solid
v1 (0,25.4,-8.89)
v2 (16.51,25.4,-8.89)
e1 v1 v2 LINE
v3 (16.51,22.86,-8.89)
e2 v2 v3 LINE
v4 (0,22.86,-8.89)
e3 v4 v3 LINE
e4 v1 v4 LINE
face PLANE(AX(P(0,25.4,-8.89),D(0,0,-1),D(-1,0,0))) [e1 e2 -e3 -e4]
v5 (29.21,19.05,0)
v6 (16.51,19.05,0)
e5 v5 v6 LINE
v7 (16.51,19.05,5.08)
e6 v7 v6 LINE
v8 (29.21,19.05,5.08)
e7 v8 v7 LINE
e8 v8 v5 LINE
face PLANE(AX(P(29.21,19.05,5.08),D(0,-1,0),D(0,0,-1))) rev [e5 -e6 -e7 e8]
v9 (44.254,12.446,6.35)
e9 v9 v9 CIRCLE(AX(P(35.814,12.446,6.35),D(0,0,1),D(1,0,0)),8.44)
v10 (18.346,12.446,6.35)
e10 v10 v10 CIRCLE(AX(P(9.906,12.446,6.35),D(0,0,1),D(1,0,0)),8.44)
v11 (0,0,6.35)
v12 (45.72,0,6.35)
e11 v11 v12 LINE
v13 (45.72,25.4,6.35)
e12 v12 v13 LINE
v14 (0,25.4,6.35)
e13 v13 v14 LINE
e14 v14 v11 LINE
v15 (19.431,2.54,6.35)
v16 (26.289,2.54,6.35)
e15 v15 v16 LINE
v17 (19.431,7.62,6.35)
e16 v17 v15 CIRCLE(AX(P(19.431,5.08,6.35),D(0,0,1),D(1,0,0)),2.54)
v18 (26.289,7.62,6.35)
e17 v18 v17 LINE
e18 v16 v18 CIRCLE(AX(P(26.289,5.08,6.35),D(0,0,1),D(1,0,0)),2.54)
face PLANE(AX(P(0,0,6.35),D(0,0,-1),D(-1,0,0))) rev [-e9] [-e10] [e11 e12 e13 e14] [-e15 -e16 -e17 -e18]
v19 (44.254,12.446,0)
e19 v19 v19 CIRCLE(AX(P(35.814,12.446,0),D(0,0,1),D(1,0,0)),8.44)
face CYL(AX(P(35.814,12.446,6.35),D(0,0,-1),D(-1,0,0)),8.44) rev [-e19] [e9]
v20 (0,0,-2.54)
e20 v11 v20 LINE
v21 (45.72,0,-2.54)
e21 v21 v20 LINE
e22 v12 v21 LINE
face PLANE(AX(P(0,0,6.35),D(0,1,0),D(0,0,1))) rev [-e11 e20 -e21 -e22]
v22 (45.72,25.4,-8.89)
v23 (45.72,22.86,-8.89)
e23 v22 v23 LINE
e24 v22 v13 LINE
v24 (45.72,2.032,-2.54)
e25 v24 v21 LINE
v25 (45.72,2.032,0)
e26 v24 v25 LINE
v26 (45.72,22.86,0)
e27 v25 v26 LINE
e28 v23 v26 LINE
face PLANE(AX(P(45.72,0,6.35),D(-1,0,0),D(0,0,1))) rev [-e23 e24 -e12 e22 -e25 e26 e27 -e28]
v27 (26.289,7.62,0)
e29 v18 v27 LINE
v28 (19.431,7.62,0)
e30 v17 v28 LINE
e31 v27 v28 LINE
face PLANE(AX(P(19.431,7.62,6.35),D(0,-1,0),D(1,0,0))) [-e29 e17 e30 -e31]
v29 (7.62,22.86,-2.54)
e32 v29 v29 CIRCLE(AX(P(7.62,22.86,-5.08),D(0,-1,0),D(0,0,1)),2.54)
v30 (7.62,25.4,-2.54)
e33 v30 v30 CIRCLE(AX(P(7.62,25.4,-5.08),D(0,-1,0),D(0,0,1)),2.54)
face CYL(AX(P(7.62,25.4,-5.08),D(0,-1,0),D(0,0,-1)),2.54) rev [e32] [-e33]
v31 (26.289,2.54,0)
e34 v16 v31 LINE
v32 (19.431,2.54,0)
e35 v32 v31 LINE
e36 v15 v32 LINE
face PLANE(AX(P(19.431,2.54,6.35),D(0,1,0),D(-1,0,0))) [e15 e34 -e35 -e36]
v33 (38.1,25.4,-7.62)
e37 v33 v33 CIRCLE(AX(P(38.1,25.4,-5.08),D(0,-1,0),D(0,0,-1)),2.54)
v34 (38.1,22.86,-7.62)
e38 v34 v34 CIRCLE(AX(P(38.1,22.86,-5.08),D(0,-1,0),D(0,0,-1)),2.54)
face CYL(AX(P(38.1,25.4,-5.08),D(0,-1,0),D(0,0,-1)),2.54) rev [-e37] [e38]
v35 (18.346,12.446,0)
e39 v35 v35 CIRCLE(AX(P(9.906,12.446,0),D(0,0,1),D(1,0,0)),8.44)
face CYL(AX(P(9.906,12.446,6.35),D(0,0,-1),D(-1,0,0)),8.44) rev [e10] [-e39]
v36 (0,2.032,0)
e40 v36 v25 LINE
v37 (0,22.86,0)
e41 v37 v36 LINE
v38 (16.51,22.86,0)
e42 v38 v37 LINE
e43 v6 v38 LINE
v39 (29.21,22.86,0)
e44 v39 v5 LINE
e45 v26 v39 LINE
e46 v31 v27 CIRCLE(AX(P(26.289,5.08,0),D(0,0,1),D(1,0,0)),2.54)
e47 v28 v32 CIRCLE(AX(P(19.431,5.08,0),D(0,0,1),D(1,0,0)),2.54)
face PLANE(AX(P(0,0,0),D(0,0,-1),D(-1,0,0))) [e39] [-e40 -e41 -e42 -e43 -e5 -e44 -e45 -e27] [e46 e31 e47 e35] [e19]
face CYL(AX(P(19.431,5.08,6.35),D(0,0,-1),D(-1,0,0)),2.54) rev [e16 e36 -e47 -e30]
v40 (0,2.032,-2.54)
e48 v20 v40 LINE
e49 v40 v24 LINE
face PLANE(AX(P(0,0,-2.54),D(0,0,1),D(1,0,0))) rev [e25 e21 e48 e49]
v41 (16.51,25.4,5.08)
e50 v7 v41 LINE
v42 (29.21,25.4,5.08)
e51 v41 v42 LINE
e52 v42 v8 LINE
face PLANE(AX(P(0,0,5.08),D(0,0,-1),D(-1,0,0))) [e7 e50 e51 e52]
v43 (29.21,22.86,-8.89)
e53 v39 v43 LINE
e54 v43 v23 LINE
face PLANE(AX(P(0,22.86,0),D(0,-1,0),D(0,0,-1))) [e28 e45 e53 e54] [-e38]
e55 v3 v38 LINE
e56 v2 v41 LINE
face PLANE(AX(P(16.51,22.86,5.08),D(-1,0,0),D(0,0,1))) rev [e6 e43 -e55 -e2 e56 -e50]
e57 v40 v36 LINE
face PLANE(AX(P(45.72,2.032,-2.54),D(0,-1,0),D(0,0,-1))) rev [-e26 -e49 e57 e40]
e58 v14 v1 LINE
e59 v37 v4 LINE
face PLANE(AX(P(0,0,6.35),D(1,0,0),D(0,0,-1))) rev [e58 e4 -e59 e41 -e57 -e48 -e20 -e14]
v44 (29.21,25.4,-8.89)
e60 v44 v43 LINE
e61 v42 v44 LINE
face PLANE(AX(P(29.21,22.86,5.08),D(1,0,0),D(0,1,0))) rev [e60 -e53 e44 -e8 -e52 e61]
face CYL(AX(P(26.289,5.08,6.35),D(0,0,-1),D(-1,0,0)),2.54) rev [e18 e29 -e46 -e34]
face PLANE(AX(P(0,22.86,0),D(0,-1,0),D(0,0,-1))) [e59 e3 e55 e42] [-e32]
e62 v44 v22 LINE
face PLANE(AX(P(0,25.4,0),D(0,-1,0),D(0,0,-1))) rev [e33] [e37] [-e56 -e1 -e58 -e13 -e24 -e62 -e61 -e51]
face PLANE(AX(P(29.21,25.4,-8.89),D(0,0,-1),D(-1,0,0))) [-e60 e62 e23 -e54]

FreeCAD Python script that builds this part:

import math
import FreeCAD as App
import Part
import Sketcher
from FreeCAD import Vector
Q = App.Units.Quantity

doc = App.newDocument("Part")
body = doc.addObject("PartDesign::Body", "Body")

sketch1 = body.newObject("Sketcher::SketchObject", "Sketch")
sketch1.AttachmentSupport = (doc.getObject("XY_Plane"), [""])
sketch1.MapMode = "FlatFace"
sketch1.addGeometry(Part.LineSegment(Vector(0, 22.9, 0), Vector(0, 0, 0)), False)
sketch1.addGeometry(Part.LineSegment(Vector(0, 0, 0), Vector(45.7, 0, 0)), False)
sketch1.addGeometry(Part.LineSegment(Vector(45.7, 0, 0), Vector(45.7, 22.9, 0)), False)
sketch1.addGeometry(Part.LineSegment(Vector(45.7, 22.9, 0), Vector(0, 22.9, 0)), False)
sketch1.addGeometry(Part.ArcOfCircle(Part.Circle(Vector(19.4, 5.1, 0), Vector(0, 0, 1), 2.5), math.radians(90), math.radians(270)), False)
sketch1.addGeometry(Part.LineSegment(Vector(19.4, 7.6, 0), Vector(26.3, 7.6, 0)), False)
sketch1.addGeometry(Part.ArcOfCircle(Part.Circle(Vector(26.3, 5.1, 0), Vector(0, 0, 1), 2.5), math.radians(-90), math.radians(90)), False)
sketch1.addGeometry(Part.LineSegment(Vector(26.3, 2.5, 0), Vector(19.4, 2.5, 0)), False)
sketch1.addGeometry(Part.Circle(Vector(9.9, 12.4, 0), Vector(0, 0, 1), 8.4), False)
sketch1.addGeometry(Part.Circle(Vector(35.8, 12.4, 0), Vector(0, 0, 1), 8.4), False)
sketch1.addConstraint(Sketcher.Constraint("Coincident", 0, 2, 1, 1))
sketch1.addConstraint(Sketcher.Constraint("Coincident", 1, 2, 2, 1))
sketch1.addConstraint(Sketcher.Constraint("Coincident", 2, 2, 3, 1))
sketch1.addConstraint(Sketcher.Constraint("Coincident", 3, 2, 0, 1))
sketch1.addConstraint(Sketcher.Constraint("Tangent", 4, 1, 5, 1))
sketch1.addConstraint(Sketcher.Constraint("Tangent", 5, 2, 6, 2))
sketch1.addConstraint(Sketcher.Constraint("Tangent", 6, 1, 7, 1))
sketch1.addConstraint(Sketcher.Constraint("Tangent", 7, 2, 4, 2))
sketch1.addConstraint(Sketcher.Constraint("Vertical", 0))
sketch1.addConstraint(Sketcher.Constraint("Horizontal", 1))
sketch1.addConstraint(Sketcher.Constraint("Vertical", 2))
sketch1.addConstraint(Sketcher.Constraint("Horizontal", 3))
sketch1.addConstraint(Sketcher.Constraint("Horizontal", 5))
sketch1.addConstraint(Sketcher.Constraint("Horizontal", 7))
sketch1.addConstraint(Sketcher.Constraint("Coincident", 0, 2, -1, 1))
sketch1.addConstraint(Sketcher.Constraint("Equal", 8, 9))
sketch1.addConstraint(Sketcher.Constraint("Horizontal", 8, 3, 9, 3))
sketch1.addConstraint(Sketcher.Constraint("Radius", 4, Q("0.1 in")))
sketch1.addConstraint(Sketcher.Constraint("DistanceX", 1, 1, 1, 2, Q("1.8 in")))
sketch1.addConstraint(Sketcher.Constraint("DistanceY", 0, 2, 0, 1, Q("0.9 in")))
sketch1.addConstraint(Sketcher.Constraint("DistanceX", 5, 1, 5, 2, Q("0.27 in")))
sketch1.addConstraint(Sketcher.Constraint("DistanceY", -1, 1, 4, 3, Q("0.2 in")))
sketch1.addConstraint(Sketcher.Constraint("Diameter", 8, 16.88))
sketch1.addConstraint(Sketcher.Constraint("DistanceX", -1, 1, 8, 3, Q("0.39 in")))
sketch1.addConstraint(Sketcher.Constraint("DistanceY", -1, 1, 8, 3, Q("0.49 in")))
sketch1.addConstraint(Sketcher.Constraint("DistanceX", -1, 1, 9, 3, Q("1.41 in")))
sketch1.addConstraint(Sketcher.Constraint("DistanceX", -1, 1, 4, 3, Q("0.765 in")))
pad1 = body.newObject("PartDesign::Pad", "Pad")
pad1.Profile = sketch1
pad1.Length = Q("0.25 in")

sketch2 = body.newObject("Sketcher::SketchObject", "Sketch001")
sketch2.AttachmentSupport = (doc.getObject("XY_Plane"), [""])
sketch2.MapMode = "FlatFace"
sketch2.addGeometry(Part.LineSegment(Vector(29.2, 22.9, 0), Vector(29.2, 19.1, 0)), False)
sketch2.addGeometry(Part.LineSegment(Vector(29.2, 19.1, 0), Vector(16.5, 19.1, 0)), False)
sketch2.addGeometry(Part.LineSegment(Vector(16.5, 19.1, 0), Vector(16.5, 22.9, 0)), False)
sketch2.addGeometry(Part.LineSegment(Vector(16.5, 22.9, 0), Vector(29.2, 22.9, 0)), False)
sketch2.addConstraint(Sketcher.Constraint("Coincident", 0, 2, 1, 1))
sketch2.addConstraint(Sketcher.Constraint("Coincident", 1, 2, 2, 1))
sketch2.addConstraint(Sketcher.Constraint("Coincident", 2, 2, 3, 1))
sketch2.addConstraint(Sketcher.Constraint("Coincident", 3, 2, 0, 1))
sketch2.addConstraint(Sketcher.Constraint("Vertical", 0))
sketch2.addConstraint(Sketcher.Constraint("Horizontal", 1))
sketch2.addConstraint(Sketcher.Constraint("Vertical", 2))
sketch2.addConstraint(Sketcher.Constraint("Horizontal", 3))
sketch2.addConstraint(Sketcher.Constraint("DistanceX", 1, 2, 1, 1, Q("0.5 in")))
sketch2.addConstraint(Sketcher.Constraint("DistanceY", 0, 2, 0, 1, Q("0.15 in")))
sketch2.addConstraint(Sketcher.Constraint("DistanceY", -1, 1, 2, 2, Q("0.9 in")))
sketch2.addConstraint(Sketcher.Constraint("DistanceX", -1, 1, 0, 2, Q("1.15 in")))
pocket1 = body.newObject("PartDesign::Pocket", "Pocket")
pocket1.Profile = sketch2
pocket1.Length = Q("0.2 in")
pocket1.Reversed = True

sketch3 = body.newObject("Sketcher::SketchObject", "Sketch002")
sketch3.AttachmentSupport = (doc.getObject("XZ_Plane"), [""])
sketch3.MapMode = "FlatFace"
sketch3.AttachmentOffset = App.Placement(Vector(0, 0, -0.9 * 25.4), App.Rotation())
sketch3.addGeometry(Part.LineSegment(Vector(0, -9, 0), Vector(0, 6, 0)), False)
sketch3.addGeometry(Part.LineSegment(Vector(0, 6, 0), Vector(46, 6, 0)), False)
sketch3.addGeometry(Part.LineSegment(Vector(46, 6, 0), Vector(46, -9, 0)), False)
sketch3.addGeometry(Part.LineSegment(Vector(46, -9, 0), Vector(29, -9, 0)), False)
sketch3.addGeometry(Part.LineSegment(Vector(29, -9, 0), Vector(29, 5, 0)), False)
sketch3.addGeometry(Part.LineSegment(Vector(29, 5, 0), Vector(17, 5, 0)), False)
sketch3.addGeometry(Part.LineSegment(Vector(17, 5, 0), Vector(17, -9, 0)), False)
sketch3.addGeometry(Part.LineSegment(Vector(17, -9, 0), Vector(0, -9, 0)), False)
sketch3.addConstraint(Sketcher.Constraint("Coincident", 0, 2, 1, 1))
sketch3.addConstraint(Sketcher.Constraint("Coincident", 1, 2, 2, 1))
sketch3.addConstraint(Sketcher.Constraint("Coincident", 2, 2, 3, 1))
sketch3.addConstraint(Sketcher.Constraint("Coincident", 3, 2, 4, 1))
sketch3.addConstraint(Sketcher.Constraint("Coincident", 4, 2, 5, 1))
sketch3.addConstraint(Sketcher.Constraint("Coincident", 5, 2, 6, 1))
sketch3.addConstraint(Sketcher.Constraint("Coincident", 6, 2, 7, 1))
sketch3.addConstraint(Sketcher.Constraint("Coincident", 7, 2, 0, 1))
sketch3.addConstraint(Sketcher.Constraint("Vertical", 0))
sketch3.addConstraint(Sketcher.Constraint("Horizontal", 1))
sketch3.addConstraint(Sketcher.Constraint("Vertical", 2))
sketch3.addConstraint(Sketcher.Constraint("Horizontal", 3))
sketch3.addConstraint(Sketcher.Constraint("Vertical", 4))
sketch3.addConstraint(Sketcher.Constraint("Horizontal", 5))
sketch3.addConstraint(Sketcher.Constraint("Vertical", 6))
sketch3.addConstraint(Sketcher.Constraint("Horizontal", 7))
sketch3.addConstraint(Sketcher.Constraint("PointOnObject", 0, 2, -2))
sketch3.addConstraint(Sketcher.Constraint("Horizontal", 3, 2, 6, 2))
sketch3.addConstraint(Sketcher.Constraint("Equal", 3, 7))
sketch3.addConstraint(Sketcher.Constraint("DistanceX", 1, 1, 1, 2, Q("1.8 in")))
sketch3.addConstraint(Sketcher.Constraint("DistanceX", 5, 2, 5, 1, Q("0.5 in")))
sketch3.addConstraint(Sketcher.Constraint("DistanceY", 0, 1, 0, 2, Q("0.6 in")))
sketch3.addConstraint(Sketcher.Constraint("DistanceY", 4, 1, 4, 2, Q("0.55 in")))
sketch3.addConstraint(Sketcher.Constraint("DistanceY", -1, 1, 4, 2, Q("0.2 in")))
pad2 = body.newObject("PartDesign::Pad", "Pad001")
pad2.Profile = sketch3
pad2.Length = Q("0.1 in")
pad2.Reversed = True

sketch4 = body.newObject("Sketcher::SketchObject", "Sketch003")
sketch4.AttachmentSupport = (doc.getObject("XY_Plane"), [""])
sketch4.MapMode = "FlatFace"
sketch4.addGeometry(Part.LineSegment(Vector(45.7, 2, 0), Vector(45.7, 0, 0)), False)
sketch4.addGeometry(Part.LineSegment(Vector(45.7, 0, 0), Vector(0, 0, 0)), False)
sketch4.addGeometry(Part.LineSegment(Vector(0, 0, 0), Vector(0, 2, 0)), False)
sketch4.addGeometry(Part.LineSegment(Vector(0, 2, 0), Vector(45.7, 2, 0)), False)
sketch4.addConstraint(Sketcher.Constraint("Coincident", 0, 2, 1, 1))
sketch4.addConstraint(Sketcher.Constraint("Coincident", 1, 2, 2, 1))
sketch4.addConstraint(Sketcher.Constraint("Coincident", 2, 2, 3, 1))
sketch4.addConstraint(Sketcher.Constraint("Coincident", 3, 2, 0, 1))
sketch4.addConstraint(Sketcher.Constraint("Vertical", 0))
sketch4.addConstraint(Sketcher.Constraint("Horizontal", 1))
sketch4.addConstraint(Sketcher.Constraint("Vertical", 2))
sketch4.addConstraint(Sketcher.Constraint("Horizontal", 3))
sketch4.addConstraint(Sketcher.Constraint("Coincident", 1, 2, -1, 1))
sketch4.addConstraint(Sketcher.Constraint("DistanceX", 1, 2, 1, 1, Q("1.8 in")))
sketch4.addConstraint(Sketcher.Constraint("DistanceY", 0, 2, 0, 1, Q("0.08 in")))
pad3 = body.newObject("PartDesign::Pad", "Pad002")
pad3.Profile = sketch4
pad3.Length = Q("0.1 in")
pad3.Reversed = True

sketch5 = body.newObject("Sketcher::SketchObject", "Sketch004")
sketch5.AttachmentSupport = (doc.getObject("XZ_Plane"), [""])
sketch5.MapMode = "FlatFace"
sketch5.AttachmentOffset = App.Placement(Vector(0, 0, -0.9 * 25.4), App.Rotation())
sketch5.addGeometry(Part.Circle(Vector(38.1, -5.1, 0), Vector(0, 0, 1), 2.5), False)
sketch5.addGeometry(Part.Circle(Vector(7.6, -5.1, 0), Vector(0, 0, 1), 2.5), False)
sketch5.addConstraint(Sketcher.Constraint("Equal", 0, 1))
sketch5.addConstraint(Sketcher.Constraint("Horizontal", 0, 3, 1, 3))
sketch5.addConstraint(Sketcher.Constraint("Diameter", 0, Q("0.2 in")))
sketch5.addConstraint(Sketcher.Constraint("DistanceX", -1, 1, 0, 3, Q("1.5 in")))
sketch5.addConstraint(Sketcher.Constraint("DistanceY", 0, 3, -1, 1, Q("0.2 in")))
sketch5.addConstraint(Sketcher.Constraint("DistanceX", -1, 1, 1, 3, Q("0.3 in")))
pocket2 = body.newObject("PartDesign::Pocket", "Pocket001")
pocket2.Profile = sketch5
pocket2.Type = "ThroughAll"

doc.recompute()
